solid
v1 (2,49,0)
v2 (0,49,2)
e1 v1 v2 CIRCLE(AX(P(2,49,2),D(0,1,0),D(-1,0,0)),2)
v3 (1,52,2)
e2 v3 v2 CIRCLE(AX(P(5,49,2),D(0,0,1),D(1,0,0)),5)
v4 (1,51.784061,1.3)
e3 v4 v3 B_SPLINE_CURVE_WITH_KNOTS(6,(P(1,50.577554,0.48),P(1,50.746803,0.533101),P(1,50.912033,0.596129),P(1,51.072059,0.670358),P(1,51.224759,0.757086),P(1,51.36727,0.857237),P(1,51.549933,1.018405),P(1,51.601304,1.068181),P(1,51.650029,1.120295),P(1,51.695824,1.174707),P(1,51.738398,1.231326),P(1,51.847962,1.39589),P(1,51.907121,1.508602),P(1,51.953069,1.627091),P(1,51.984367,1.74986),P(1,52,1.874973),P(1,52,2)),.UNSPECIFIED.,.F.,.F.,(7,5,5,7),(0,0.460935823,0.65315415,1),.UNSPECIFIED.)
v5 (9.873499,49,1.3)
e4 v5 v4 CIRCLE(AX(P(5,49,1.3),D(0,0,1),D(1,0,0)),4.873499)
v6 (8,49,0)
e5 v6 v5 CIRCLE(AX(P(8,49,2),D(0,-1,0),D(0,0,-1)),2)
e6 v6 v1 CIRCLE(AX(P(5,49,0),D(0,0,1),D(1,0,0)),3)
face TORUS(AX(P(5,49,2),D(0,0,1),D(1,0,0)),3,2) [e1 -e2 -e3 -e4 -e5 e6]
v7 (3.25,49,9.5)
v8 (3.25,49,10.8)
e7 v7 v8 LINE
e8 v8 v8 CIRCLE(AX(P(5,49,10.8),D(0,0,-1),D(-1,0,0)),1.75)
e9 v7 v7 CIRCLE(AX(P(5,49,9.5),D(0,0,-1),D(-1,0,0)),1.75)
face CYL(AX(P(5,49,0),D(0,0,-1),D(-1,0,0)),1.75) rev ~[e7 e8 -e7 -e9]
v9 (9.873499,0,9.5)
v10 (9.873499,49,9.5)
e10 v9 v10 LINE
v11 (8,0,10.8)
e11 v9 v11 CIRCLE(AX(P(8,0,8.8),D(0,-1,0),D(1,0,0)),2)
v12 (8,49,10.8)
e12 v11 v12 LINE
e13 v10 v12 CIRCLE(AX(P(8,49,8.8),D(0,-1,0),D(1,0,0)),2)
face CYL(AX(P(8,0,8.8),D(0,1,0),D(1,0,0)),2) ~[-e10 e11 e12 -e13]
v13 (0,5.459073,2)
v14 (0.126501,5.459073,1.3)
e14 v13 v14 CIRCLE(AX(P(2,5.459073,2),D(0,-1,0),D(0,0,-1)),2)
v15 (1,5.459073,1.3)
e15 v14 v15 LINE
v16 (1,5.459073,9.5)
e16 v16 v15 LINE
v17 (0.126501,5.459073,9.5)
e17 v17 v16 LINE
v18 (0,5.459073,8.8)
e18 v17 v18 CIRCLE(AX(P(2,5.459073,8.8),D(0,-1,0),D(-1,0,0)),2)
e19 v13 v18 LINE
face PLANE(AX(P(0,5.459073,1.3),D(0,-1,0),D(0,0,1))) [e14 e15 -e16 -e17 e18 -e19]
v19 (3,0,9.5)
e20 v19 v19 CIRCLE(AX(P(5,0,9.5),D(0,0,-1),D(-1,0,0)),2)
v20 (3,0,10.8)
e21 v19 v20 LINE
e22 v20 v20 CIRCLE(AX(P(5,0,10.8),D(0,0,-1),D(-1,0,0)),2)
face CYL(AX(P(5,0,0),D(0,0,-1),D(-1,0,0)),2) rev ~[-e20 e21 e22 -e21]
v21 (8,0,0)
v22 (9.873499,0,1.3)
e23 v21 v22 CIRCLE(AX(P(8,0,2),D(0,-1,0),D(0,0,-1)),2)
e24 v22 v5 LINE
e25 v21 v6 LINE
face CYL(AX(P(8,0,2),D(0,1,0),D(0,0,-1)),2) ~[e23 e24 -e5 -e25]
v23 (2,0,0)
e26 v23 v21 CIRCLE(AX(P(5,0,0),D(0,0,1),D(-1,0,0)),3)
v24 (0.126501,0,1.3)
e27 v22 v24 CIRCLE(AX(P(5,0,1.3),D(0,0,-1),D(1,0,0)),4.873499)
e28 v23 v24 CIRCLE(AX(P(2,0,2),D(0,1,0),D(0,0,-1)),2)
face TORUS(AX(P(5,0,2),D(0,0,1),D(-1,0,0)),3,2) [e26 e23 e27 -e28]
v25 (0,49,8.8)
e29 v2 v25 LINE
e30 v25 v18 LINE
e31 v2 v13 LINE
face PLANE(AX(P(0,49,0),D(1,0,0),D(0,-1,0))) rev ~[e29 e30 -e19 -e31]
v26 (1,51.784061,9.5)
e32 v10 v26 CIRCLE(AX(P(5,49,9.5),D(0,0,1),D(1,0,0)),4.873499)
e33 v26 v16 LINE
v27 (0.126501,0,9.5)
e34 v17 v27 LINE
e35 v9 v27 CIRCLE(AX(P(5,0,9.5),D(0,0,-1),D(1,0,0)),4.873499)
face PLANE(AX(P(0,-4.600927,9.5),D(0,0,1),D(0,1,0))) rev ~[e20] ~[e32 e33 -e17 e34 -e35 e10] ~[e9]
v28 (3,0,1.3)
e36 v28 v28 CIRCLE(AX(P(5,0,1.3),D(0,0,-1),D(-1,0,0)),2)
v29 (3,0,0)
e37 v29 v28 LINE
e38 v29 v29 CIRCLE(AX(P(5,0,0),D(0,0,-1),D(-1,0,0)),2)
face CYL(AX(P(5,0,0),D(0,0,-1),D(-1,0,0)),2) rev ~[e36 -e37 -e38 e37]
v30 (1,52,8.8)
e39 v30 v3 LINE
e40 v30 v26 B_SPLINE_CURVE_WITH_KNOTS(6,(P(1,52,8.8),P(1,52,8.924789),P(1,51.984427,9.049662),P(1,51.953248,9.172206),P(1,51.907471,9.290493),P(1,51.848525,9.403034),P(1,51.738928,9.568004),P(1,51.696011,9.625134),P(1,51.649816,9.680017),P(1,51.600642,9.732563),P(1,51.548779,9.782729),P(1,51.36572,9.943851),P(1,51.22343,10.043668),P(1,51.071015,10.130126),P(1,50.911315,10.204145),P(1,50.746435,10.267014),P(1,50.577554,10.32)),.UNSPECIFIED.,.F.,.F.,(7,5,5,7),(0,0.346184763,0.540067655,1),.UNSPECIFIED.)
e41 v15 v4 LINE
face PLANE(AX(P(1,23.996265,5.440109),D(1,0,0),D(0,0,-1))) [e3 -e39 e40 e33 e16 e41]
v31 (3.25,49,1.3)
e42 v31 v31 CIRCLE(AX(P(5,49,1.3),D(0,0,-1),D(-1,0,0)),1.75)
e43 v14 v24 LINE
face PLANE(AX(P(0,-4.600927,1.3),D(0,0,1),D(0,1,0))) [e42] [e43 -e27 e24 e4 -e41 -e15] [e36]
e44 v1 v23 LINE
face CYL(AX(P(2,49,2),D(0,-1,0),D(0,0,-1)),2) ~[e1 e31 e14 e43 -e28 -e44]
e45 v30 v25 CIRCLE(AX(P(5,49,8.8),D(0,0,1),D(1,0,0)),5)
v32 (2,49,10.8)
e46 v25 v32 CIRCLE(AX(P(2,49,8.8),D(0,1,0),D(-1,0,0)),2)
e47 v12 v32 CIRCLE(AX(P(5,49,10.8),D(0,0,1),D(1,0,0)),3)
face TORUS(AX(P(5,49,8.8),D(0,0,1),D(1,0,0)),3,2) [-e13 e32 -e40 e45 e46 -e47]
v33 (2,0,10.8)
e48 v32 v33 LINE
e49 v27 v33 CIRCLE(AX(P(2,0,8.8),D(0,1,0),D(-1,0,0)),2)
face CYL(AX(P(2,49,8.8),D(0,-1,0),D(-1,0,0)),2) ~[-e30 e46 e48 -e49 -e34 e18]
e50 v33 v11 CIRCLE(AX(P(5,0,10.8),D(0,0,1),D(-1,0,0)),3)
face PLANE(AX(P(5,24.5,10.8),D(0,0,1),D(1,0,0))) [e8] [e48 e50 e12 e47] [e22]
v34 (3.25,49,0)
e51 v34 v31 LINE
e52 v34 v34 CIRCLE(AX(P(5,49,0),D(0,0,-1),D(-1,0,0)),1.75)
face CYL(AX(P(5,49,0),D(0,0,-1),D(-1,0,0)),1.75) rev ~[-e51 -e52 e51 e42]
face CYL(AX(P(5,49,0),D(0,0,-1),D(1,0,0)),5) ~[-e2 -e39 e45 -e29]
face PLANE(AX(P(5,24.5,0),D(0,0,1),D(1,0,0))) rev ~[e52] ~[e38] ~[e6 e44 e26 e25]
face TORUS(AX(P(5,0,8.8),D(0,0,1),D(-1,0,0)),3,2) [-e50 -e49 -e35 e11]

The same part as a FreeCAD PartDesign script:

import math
import FreeCAD as App
import Part
import Sketcher
from FreeCAD import Vector
Q = App.Units.Quantity


def edges_at(feature, points):
    """Names of the edges that pass closest to the given points."""
    edges = feature.Shape.Edges
    near = lambda p: min(range(len(edges)), key=lambda i: edges[i].distToShape(Part.Vertex(*p))[0])
    return sorted({f"Edge{near(p) + 1}" for p in points})


def add_polygon(sketch, points):
    """Adds a closed chain of lines whose ends are joined by coincident constraints."""
    first, n = sketch.GeometryCount, len(points)
    for a, b in zip(points, points[1:] + points[:1]):
        sketch.addGeometry(Part.LineSegment(App.Vector(*a, 0), App.Vector(*b, 0)), False)
    for i in range(n):
        sketch.addConstraint(Sketcher.Constraint("Coincident", first + i, 2, first + (i + 1) % n, 1))

doc = App.newDocument("Part")
params = doc.addObject("Spreadsheet::Sheet", "Params")
for row, (alias, value) in enumerate([
    ("sketch1_radius", "5 mm"),
    ("sketch1_height", "49 mm"),
    ("pad1_length", "10.8 mm"),
    ("fillet_radius", "2 mm"),
    ("fillet2_radius", "2 mm"),
    ("sketch2_height", "8.2 mm"),
    ("pocket1_length", "9 mm"),
    ("sketch3_height", "8.2 mm"),
    ("sketch3_width", "10.06 mm"),
    ("pocket2_length", "9 mm"),
    ("sketch4_diameter", "4 mm"),
    ("sketch4_diameter2", "3.5 mm"),
], start=1):
    params.set(f"A{row}", alias)
    params.set(f"B{row}", "=" + value)
    params.setAlias(f"B{row}", alias)

body = doc.addObject("PartDesign::Body", "Body")

sketch1 = body.newObject("Sketcher::SketchObject", "Sketch")
sketch1.AttachmentSupport = (doc.getObject("XY_Plane"), [""])
sketch1.MapMode = "FlatFace"
sketch1.addGeometry([
    Part.LineSegment(Vector(0, 49, 0), Vector(0, 0, 0)),
    Part.ArcOfCircle(Part.Circle(Vector(5, 0, 0), Vector(0, 0, 1), 5), math.radians(180), math.radians(360)),
    Part.LineSegment(Vector(10, 0, 0), Vector(10, 49, 0)),
    Part.ArcOfCircle(Part.Circle(Vector(5, 49, 0), Vector(0, 0, 1), 5), math.radians(0), math.radians(180)),
], False)
sketch1.addConstraint([
    Sketcher.Constraint("Tangent", 0, 2, 1, 1),
    Sketcher.Constraint("Tangent", 1, 2, 2, 1),
    Sketcher.Constraint("Tangent", 2, 2, 3, 1),
    Sketcher.Constraint("Tangent", 3, 2, 0, 1),
    Sketcher.Constraint("Vertical", 0),
    Sketcher.Constraint("Vertical", 2),
    Sketcher.Constraint("Coincident", 0, 2, -1, 1),
    Sketcher.Constraint("Radius", 1, Q("5 mm")),
    Sketcher.Constraint("DistanceY", 0, 2, 0, 1, Q("49 mm")),
])
sketch1.setExpression("Constraints[7]", "Params.sketch1_radius")
sketch1.setExpression("Constraints[8]", "Params.sketch1_height")
pad1 = body.newObject("PartDesign::Pad", "Pad")
pad1.Profile = sketch1
pad1.setExpression("Length", "Params.pad1_length")
doc.recompute()

fillet = body.newObject("PartDesign::Fillet", "Fillet")
fillet.Base = (pad1, edges_at(pad1, [
    (5, -5, 10.8),
    (10, 24.5, 10.8),
    (5, 54, 10.8),
    (0, 24.5, 10.8),
]))
fillet.setExpression("Radius", "Params.fillet_radius")
doc.recompute()

fillet2 = body.newObject("PartDesign::Fillet", "Fillet001")
fillet2.Base = (fillet, edges_at(fillet, [
    (10, 24.5, 0),
    (5, -5, 0),
    (0, 24.5, 0),
    (5, 54, 0),
]))
fillet2.setExpression("Radius", "Params.fillet2_radius")

sketch2 = body.newObject("Sketcher::SketchObject", "Sketch001")
sketch2.AttachmentSupport = (doc.getObject("YZ_Plane"), [""])
sketch2.MapMode = "FlatFace"
sketch2.AttachmentOffset = App.Placement(Vector(0, 0, 10), App.Rotation())
add_polygon(sketch2, [(58, 10), (-9, 10), (-9, 1), (57, 1)])
sketch2.addConstraint([
    Sketcher.Constraint("Horizontal", 0),
    Sketcher.Constraint("Vertical", 1),
    Sketcher.Constraint("Horizontal", 2),
    Sketcher.Constraint("DistanceY", 1, 2, 1, 1, Q("8.2 mm")),
    Sketcher.Constraint("DistanceY", -1, 1, 0, 2, Q("9.5 mm")),
    Sketcher.Constraint("DistanceX", 0, 2, 0, 1, Q("67.368011 mm")),
    Sketcher.Constraint("DistanceX", 2, 1, 2, 2, Q("65.902576 mm")),
    Sketcher.Constraint("DistanceX", 0, 2, -1, 1, Q("9.353861 mm")),
])
sketch2.setExpression("Constraints[7]", "Params.sketch2_height")
pocket1 = body.newObject("PartDesign::Pocket", "Pocket")
pocket1.Profile = sketch2
pocket1.setExpression("Length", "Params.pocket1_length")

sketch3 = body.newObject("Sketcher::SketchObject", "Sketch002")
sketch3.AttachmentSupport = (doc.getObject("YZ_Plane"), [""])
sketch3.MapMode = "FlatFace"
add_polygon(sketch3, [(5, 1), (-5, 1), (-5, 10), (5, 10)])
sketch3.addConstraint([
    Sketcher.Constraint("Horizontal", 0),
    Sketcher.Constraint("Vertical", 1),
    Sketcher.Constraint("Horizontal", 2),
    Sketcher.Constraint("Vertical", 3),
    Sketcher.Constraint("DistanceY", 1, 1, 1, 2, Q("8.2 mm")),
    Sketcher.Constraint("DistanceX", 0, 2, 0, 1, Q("10.06 mm")),
    Sketcher.Constraint("DistanceY", -1, 1, 0, 2, Q("1.3 mm")),
    Sketcher.Constraint("DistanceX", 0, 2, -1, 1, Q("4.600927 mm")),
])
sketch3.setExpression("Constraints[8]", "Params.sketch3_height")
sketch3.setExpression("Constraints[9]", "Params.sketch3_width")
pocket2 = body.newObject("PartDesign::Pocket", "Pocket001")
pocket2.Profile = sketch3
pocket2.setExpression("Length", "Params.pocket2_length")
pocket2.Reversed = True

sketch4 = body.newObject("Sketcher::SketchObject", "Sketch003")
sketch4.AttachmentSupport = (doc.getObject("XY_Plane"), [""])
sketch4.MapMode = "FlatFace"
sketch4.addGeometry([
    Part.Circle(Vector(5, 0, 0), Vector(0, 0, 1), 2),
    Part.Circle(Vector(5, 49, 0), Vector(0, 0, 1), 1.8),
], False)
sketch4.addConstraint([
    Sketcher.Constraint("PointOnObject", 0, 3, -1),
    Sketcher.Constraint("Vertical", 0, 3, 1, 3),
    Sketcher.Constraint("Diameter", 0, Q("4 mm")),
    Sketcher.Constraint("Diameter", 1, Q("3.5 mm")),
    Sketcher.Constraint("DistanceX", -1, 1, 0, 3, Q("5 mm")),
    Sketcher.Constraint("DistanceY", -1, 1, 1, 3, Q("49 mm")),
])
sketch4.setExpression("Constraints[2]", "Params.sketch4_diameter")
sketch4.setExpression("Constraints[3]", "Params.sketch4_diameter2")
pocket3 = body.newObject("PartDesign::Pocket", "Pocket002")
pocket3.Profile = sketch4
pocket3.Type = "ThroughAll"
pocket3.Reversed = True

doc.recompute()
